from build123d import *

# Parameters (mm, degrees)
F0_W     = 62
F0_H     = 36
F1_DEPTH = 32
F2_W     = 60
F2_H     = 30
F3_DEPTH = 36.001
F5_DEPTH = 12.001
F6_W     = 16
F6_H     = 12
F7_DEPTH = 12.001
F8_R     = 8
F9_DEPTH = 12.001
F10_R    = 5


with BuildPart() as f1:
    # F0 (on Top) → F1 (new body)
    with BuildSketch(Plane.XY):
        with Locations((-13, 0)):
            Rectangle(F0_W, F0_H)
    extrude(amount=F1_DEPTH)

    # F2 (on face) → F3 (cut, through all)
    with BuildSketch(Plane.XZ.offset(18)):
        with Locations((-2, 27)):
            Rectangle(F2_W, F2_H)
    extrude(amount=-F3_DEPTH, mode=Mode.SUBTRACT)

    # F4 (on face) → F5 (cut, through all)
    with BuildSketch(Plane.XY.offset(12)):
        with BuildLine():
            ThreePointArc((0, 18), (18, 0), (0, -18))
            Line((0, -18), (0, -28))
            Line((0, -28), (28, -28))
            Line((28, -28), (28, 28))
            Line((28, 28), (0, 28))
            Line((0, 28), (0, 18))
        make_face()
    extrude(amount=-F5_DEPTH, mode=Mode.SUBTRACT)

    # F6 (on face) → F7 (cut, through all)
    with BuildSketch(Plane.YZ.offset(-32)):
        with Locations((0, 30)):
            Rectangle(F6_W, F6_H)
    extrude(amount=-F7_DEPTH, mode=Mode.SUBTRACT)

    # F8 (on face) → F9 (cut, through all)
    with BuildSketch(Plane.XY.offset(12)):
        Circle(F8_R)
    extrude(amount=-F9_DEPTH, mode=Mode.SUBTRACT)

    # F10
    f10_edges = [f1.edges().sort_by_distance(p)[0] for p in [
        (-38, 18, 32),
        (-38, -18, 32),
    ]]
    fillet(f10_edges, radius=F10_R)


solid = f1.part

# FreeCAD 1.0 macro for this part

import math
import FreeCAD as App
import Part
import Sketcher
Q = App.Units.Quantity


def edges_at(feature, points):
    """Names of the edges that pass closest to the given points."""
    edges = feature.Shape.Edges
    near = lambda p: min(range(len(edges)), key=lambda i: edges[i].distToShape(Part.Vertex(*p))[0])
    return sorted({f"Edge{near(p) + 1}" for p in points})


def add_polygon(sketch, points):
    """Adds a closed chain of lines whose ends are joined by coincident constraints."""
    first, n = sketch.GeometryCount, len(points)
    for a, b in zip(points, points[1:] + points[:1]):
        sketch.addGeometry(Part.LineSegment(App.Vector(*a, 0), App.Vector(*b, 0)), False)
    for i in range(n):
        sketch.addConstraint(Sketcher.Constraint("Coincident", first + i, 2, first + (i + 1) % n, 1))

doc = App.newDocument("Part")
body = doc.addObject("PartDesign::Body", "Body")

sketch1 = body.newObject("Sketcher::SketchObject", "Sketch")
sketch1.AttachmentSupport = (doc.getObject("XY_Plane"), [""])
sketch1.MapMode = "FlatFace"
add_polygon(sketch1, [(-44, 18), (-44, -18), (18, -18), (18, 18)])
sketch1.addConstraint(Sketcher.Constraint("Vertical", 0))
sketch1.addConstraint(Sketcher.Constraint("Horizontal", 1))
sketch1.addConstraint(Sketcher.Constraint("Vertical", 2))
sketch1.addConstraint(Sketcher.Constraint("Horizontal", 3))
sketch1.addConstraint(Sketcher.Constraint("DistanceX", 1, 1, 1, 2, Q("62 mm")))
sketch1.addConstraint(Sketcher.Constraint("DistanceY", 0, 2, 0, 1, Q("36 mm")))
sketch1.addConstraint(Sketcher.Constraint("DistanceX", 0, 2, -1, 1, Q("44 mm")))
sketch1.addConstraint(Sketcher.Constraint("DistanceY", 0, 2, -1, 1, Q("18 mm")))
pad1 = body.newObject("PartDesign::Pad", "Pad")
pad1.Profile = sketch1
pad1.Length = 32

sketch2 = body.newObject("Sketcher::SketchObject", "Sketch001")
sketch2.AttachmentSupport = (doc.getObject("XZ_Plane"), [""])
sketch2.MapMode = "FlatFace"
sketch2.AttachmentOffset = App.Placement(App.Vector(0, 0, 18), App.Rotation())
add_polygon(sketch2, [(-32, 42), (-32, 12), (28, 12), (28, 42)])
sketch2.addConstraint(Sketcher.Constraint("Vertical", 0))
sketch2.addConstraint(Sketcher.Constraint("Horizontal", 1))
sketch2.addConstraint(Sketcher.Constraint("Vertical", 2))
sketch2.addConstraint(Sketcher.Constraint("Horizontal", 3))
sketch2.addConstraint(Sketcher.Constraint("DistanceX", 1, 1, 1, 2, Q("60 mm")))
sketch2.addConstraint(Sketcher.Constraint("DistanceY", 0, 2, 0, 1, Q("30 mm")))
sketch2.addConstraint(Sketcher.Constraint("DistanceX", 0, 2, -1, 1, Q("32 mm")))
sketch2.addConstraint(Sketcher.Constraint("DistanceY", -1, 1, 0, 2, Q("12 mm")))
pocket1 = body.newObject("PartDesign::Pocket", "Pocket")
pocket1.Profile = sketch2
pocket1.Type = "ThroughAll"

sketch3 = body.newObject("Sketcher::SketchObject", "Sketch002")
sketch3.AttachmentSupport = (doc.getObject("XY_Plane"), [""])
sketch3.MapMode = "FlatFace"
sketch3.AttachmentOffset = App.Placement(App.Vector(0, 0, 12), App.Rotation())
sketch3.addGeometry(Part.ArcOfCircle(Part.Circle(App.Vector(0, 0, 0), App.Vector(0, 0, 1), 18), math.radians(-90), math.radians(90)), False)
sketch3.addGeometry(Part.LineSegment(App.Vector(0, -18, 0), App.Vector(0, -28, 0)), False)
sketch3.addGeometry(Part.LineSegment(App.Vector(0, -28, 0), App.Vector(28, -28, 0)), False)
sketch3.addGeometry(Part.LineSegment(App.Vector(28, -28, 0), App.Vector(28, 28, 0)), False)
sketch3.addGeometry(Part.LineSegment(App.Vector(28, 28, 0), App.Vector(0, 28, 0)), False)
sketch3.addGeometry(Part.LineSegment(App.Vector(0, 28, 0), App.Vector(0, 18, 0)), False)
sketch3.addConstraint(Sketcher.Constraint("Coincident", 0, 1, 1, 1))
sketch3.addConstraint(Sketcher.Constraint("Coincident", 1, 2, 2, 1))
sketch3.addConstraint(Sketcher.Constraint("Coincident", 2, 2, 3, 1))
sketch3.addConstraint(Sketcher.Constraint("Coincident", 3, 2, 4, 1))
sketch3.addConstraint(Sketcher.Constraint("Coincident", 4, 2, 5, 1))
sketch3.addConstraint(Sketcher.Constraint("Coincident", 5, 2, 0, 2))
sketch3.addConstraint(Sketcher.Constraint("Vertical", 1))
sketch3.addConstraint(Sketcher.Constraint("Horizontal", 2))
sketch3.addConstraint(Sketcher.Constraint("Vertical", 3))
sketch3.addConstraint(Sketcher.Constraint("Horizontal", 4))
sketch3.addConstraint(Sketcher.Constraint("Vertical", 5))
sketch3.addConstraint(Sketcher.Constraint("Coincident", 0, 3, -1, 1))
sketch3.addConstraint(Sketcher.Constraint("Symmetric", 1, 2, 4, 2, -1, 1))
sketch3.addConstraint(Sketcher.Constraint("PointOnObject", 0, 1, -2))
sketch3.addConstraint(Sketcher.Constraint("Radius", 0, Q("18 mm")))
sketch3.addConstraint(Sketcher.Constraint("DistanceX", 2, 1, 2, 2, Q("28 mm")))
sketch3.addConstraint(Sketcher.Constraint("DistanceY", 1, 2, 1, 1, Q("10 mm")))
pocket2 = body.newObject("PartDesign::Pocket", "Pocket001")
pocket2.Profile = sketch3
pocket2.Type = "ThroughAll"

sketch4 = body.newObject("Sketcher::SketchObject", "Sketch003")
sketch4.AttachmentSupport = (doc.getObject("YZ_Plane"), [""])
sketch4.MapMode = "FlatFace"
sketch4.AttachmentOffset = App.Placement(App.Vector(0, 0, -32), App.Rotation())
add_polygon(sketch4, [(-8, 36), (-8, 24), (8, 24), (8, 36)])
sketch4.addConstraint(Sketcher.Constraint("Vertical", 0))
sketch4.addConstraint(Sketcher.Constraint("Horizontal", 1))
sketch4.addConstraint(Sketcher.Constraint("Vertical", 2))
sketch4.addConstraint(Sketcher.Constraint("Horizontal", 3))
sketch4.addConstraint(Sketcher.Constraint("DistanceX", 1, 1, 1, 2, Q("16 mm")))
sketch4.addConstraint(Sketcher.Constraint("DistanceY", 0, 2, 0, 1, Q("12 mm")))
sketch4.addConstraint(Sketcher.Constraint("DistanceX", 0, 2, -1, 1, Q("8 mm")))
sketch4.addConstraint(Sketcher.Constraint("DistanceY", -1, 1, 0, 2, Q("24 mm")))
pocket3 = body.newObject("PartDesign::Pocket", "Pocket002")
pocket3.Profile = sketch4
pocket3.Type = "ThroughAll"

sketch5 = body.newObject("Sketcher::SketchObject", "Sketch004")
sketch5.AttachmentSupport = (doc.getObject("XY_Plane"), [""])
sketch5.MapMode = "FlatFace"
sketch5.AttachmentOffset = App.Placement(App.Vector(0, 0, 12), App.Rotation())
sketch5.addGeometry(Part.Circle(App.Vector(0, 0, 0), App.Vector(0, 0, 1), 8), False)
sketch5.addConstraint(Sketcher.Constraint("Coincident", 0, 3, -1, 1))
sketch5.addConstraint(Sketcher.Constraint("Diameter", 0, Q("16 mm")))
pocket4 = body.newObject("PartDesign::Pocket", "Pocket003")
pocket4.Profile = sketch5
pocket4.Type = "ThroughAll"
doc.recompute()

fillet = body.newObject("PartDesign::Fillet", "Fillet")
fillet.Base = (pocket4, edges_at(pocket4, [(-38, 18, 32), (-38, -18, 32)]))
fillet.Radius = 5

doc.recompute()
